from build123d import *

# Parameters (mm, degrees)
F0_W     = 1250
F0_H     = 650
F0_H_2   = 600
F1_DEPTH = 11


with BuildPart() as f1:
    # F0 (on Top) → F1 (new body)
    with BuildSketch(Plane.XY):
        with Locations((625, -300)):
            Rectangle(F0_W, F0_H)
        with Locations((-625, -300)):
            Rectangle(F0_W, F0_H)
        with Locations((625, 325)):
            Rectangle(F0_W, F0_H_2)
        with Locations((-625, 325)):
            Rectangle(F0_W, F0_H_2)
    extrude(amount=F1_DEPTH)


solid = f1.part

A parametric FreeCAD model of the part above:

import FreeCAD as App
import Part
import Sketcher

V = App.Vector


def add_polygon(sketch, points):
    """Adds a closed chain of lines whose ends are joined by coincident constraints."""
    first, n = sketch.GeometryCount, len(points)
    for a, b in zip(points, points[1:] + points[:1]):
        sketch.addGeometry(Part.LineSegment(App.Vector(*a, 0), App.Vector(*b, 0)), False)
    for i in range(n):
        sketch.addConstraint(Sketcher.Constraint("Coincident", first + i, 2, first + (i + 1) % n, 1))

doc = App.newDocument("Part")
body = doc.addObject("PartDesign::Body", "Body")

sketch1 = doc.addObject("Sketcher::SketchObject", "Sketch")
body.addObject(sketch1)
sketch1.AttachmentSupport = (doc.XY_Plane, [""])
sketch1.MapMode = "FlatFace"
add_polygon(sketch1, [(1250, -625), (1250, 625), (-1250, 625), (-1250, -625)])
sketch1.addConstraint([
    Sketcher.Constraint("Vertical", 0),
    Sketcher.Constraint("Horizontal", 1),
    Sketcher.Constraint("Vertical", 2),
    Sketcher.Constraint("Horizontal", 3),
    Sketcher.Constraint("Symmetric", 0, 2, 2, 2, -1, 1),
    Sketcher.Constraint("DistanceX", 1, 2, 1, 1, 2500.0),
    Sketcher.Constraint("DistanceY", 0, 1, 0, 2, 1250.0),
])
pad1 = doc.addObject("PartDesign::Pad", "Pad")
body.addObject(pad1)
pad1.Profile = sketch1
pad1.Length = 11

doc.recompute()
